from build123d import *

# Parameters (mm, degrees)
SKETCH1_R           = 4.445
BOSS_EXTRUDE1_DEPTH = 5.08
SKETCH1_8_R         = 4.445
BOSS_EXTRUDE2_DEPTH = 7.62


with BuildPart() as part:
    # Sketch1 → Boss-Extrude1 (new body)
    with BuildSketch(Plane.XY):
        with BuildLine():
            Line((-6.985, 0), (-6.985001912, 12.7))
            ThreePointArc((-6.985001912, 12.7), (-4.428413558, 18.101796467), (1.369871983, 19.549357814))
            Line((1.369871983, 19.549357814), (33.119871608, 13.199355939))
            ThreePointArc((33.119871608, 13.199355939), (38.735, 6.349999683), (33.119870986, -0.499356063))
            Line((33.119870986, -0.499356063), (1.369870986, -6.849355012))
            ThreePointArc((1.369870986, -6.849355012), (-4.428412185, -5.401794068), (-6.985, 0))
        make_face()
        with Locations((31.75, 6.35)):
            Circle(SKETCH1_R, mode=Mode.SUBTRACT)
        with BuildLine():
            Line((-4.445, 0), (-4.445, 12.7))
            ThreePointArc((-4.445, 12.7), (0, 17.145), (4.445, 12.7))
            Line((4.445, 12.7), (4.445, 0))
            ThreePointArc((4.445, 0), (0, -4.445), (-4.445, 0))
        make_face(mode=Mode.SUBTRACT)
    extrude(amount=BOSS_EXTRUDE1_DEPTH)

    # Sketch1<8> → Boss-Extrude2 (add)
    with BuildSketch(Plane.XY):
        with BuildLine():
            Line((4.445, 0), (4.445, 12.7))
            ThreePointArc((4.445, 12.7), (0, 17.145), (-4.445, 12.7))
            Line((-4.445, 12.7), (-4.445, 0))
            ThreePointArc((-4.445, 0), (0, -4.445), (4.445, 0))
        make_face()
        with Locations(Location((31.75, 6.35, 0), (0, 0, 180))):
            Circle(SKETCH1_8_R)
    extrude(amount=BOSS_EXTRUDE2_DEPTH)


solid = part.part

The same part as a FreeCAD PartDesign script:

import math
import FreeCAD as App
import Part
import Sketcher
Q = App.Units.Quantity

doc = App.newDocument("Part")
body = doc.addObject("PartDesign::Body", "Body")

# Sketch on XY plane
sketch1 = doc.addObject("Sketcher::SketchObject", "Sketch")
body.addObject(sketch1)
sketch1.AttachmentSupport = (doc.XY_Plane, [""])
sketch1.MapMode = "FlatFace"
sketch1.addGeometry([
    Part.LineSegment(App.Vector(-6.985002, 12.7, 0), App.Vector(-6.985, 0, 0)),  # 0
    Part.ArcOfCircle(Part.Circle(App.Vector(0, 0.000001, 0), App.Vector(0, 0, 1), 6.985), math.radians(-179.999991), math.radians(-78.690069)),  # 1
    Part.LineSegment(App.Vector(1.369871, -6.849355, 0), App.Vector(33.119871, -0.499356, 0)),  # 2
    Part.ArcOfCircle(Part.Circle(App.Vector(31.75, 6.35, 0), App.Vector(0, 0, 1), 6.985), math.radians(-78.690069), math.radians(78.690064)),  # 3
    Part.LineSegment(App.Vector(33.119872, 13.199356, 0), App.Vector(1.369872, 19.549358, 0)),  # 4
    Part.ArcOfCircle(Part.Circle(App.Vector(0, 12.7, 0), App.Vector(0, 0, 1), 6.985002), math.radians(78.690064), math.radians(180)),  # 5
    Part.Circle(App.Vector(31.75, 6.35, 0), App.Vector(0, 0, 1), 4.445),  # 6
    Part.LineSegment(App.Vector(-4.445, 0, 0), App.Vector(-4.445, 12.7, 0)),  # 7
    Part.ArcOfCircle(Part.Circle(App.Vector(0, 12.7, 0), App.Vector(0, 0, 1), 4.445), math.radians(0), math.radians(180)),  # 8
    Part.LineSegment(App.Vector(4.445, 12.7, 0), App.Vector(4.445, 0, 0)),  # 9
    Part.ArcOfCircle(Part.Circle(App.Vector(0, 0, 0), App.Vector(0, 0, 1), 4.445), math.radians(180), math.radians(360)),  # 10
], False)
sketch1.addConstraint([
    Sketcher.Constraint("Tangent", 0, 2, 1, 1),
    Sketcher.Constraint("Tangent", 1, 2, 2, 1),
    Sketcher.Constraint("Tangent", 2, 2, 3, 1),
    Sketcher.Constraint("Tangent", 3, 2, 4, 1),
    Sketcher.Constraint("Tangent", 4, 2, 5, 1),
    Sketcher.Constraint("Tangent", 5, 2, 0, 1),
    Sketcher.Constraint("Tangent", 7, 2, 8, 2),
    Sketcher.Constraint("Tangent", 8, 1, 9, 1),
    Sketcher.Constraint("Tangent", 9, 2, 10, 2),
    Sketcher.Constraint("Tangent", 10, 1, 7, 1),
    Sketcher.Constraint("Vertical", 0),
    Sketcher.Constraint("Vertical", 7),
    Sketcher.Constraint("Vertical", 9),
    Sketcher.Constraint("Coincident", 1, 3, -1, 1),
    Sketcher.Constraint("Coincident", 10, 3, -1, 1),
    Sketcher.Constraint("Coincident", 6, 3, 3, 3),
    Sketcher.Constraint("Coincident", 8, 3, 5, 3),
    Sketcher.Constraint("Equal", 1, 3),
    Sketcher.Constraint("Equal", 6, 8),
    Sketcher.Constraint("Vertical", 2, 2, 3, 2),
    Sketcher.Constraint("Diameter", 6, Q("0.35 in")),
    Sketcher.Constraint("DistanceY", 0, 2, 0, 1, Q("0.5 in")),
    Sketcher.Constraint("Radius", 1, Q("0.275 in")),
    Sketcher.Constraint("DistanceX", -1, 1, 3, 3, Q("1.25 in")),
])
pad1 = doc.addObject("PartDesign::Pad", "Pad")
body.addObject(pad1)
pad1.Profile = sketch1
pad1.Length = Q("0.2 in")

# Sketch on XY plane
sketch2 = doc.addObject("Sketcher::SketchObject", "Sketch001")
body.addObject(sketch2)
sketch2.AttachmentSupport = (doc.XY_Plane, [""])
sketch2.MapMode = "FlatFace"
sketch2.addGeometry([
    Part.LineSegment(App.Vector(4.445, 0, 0), App.Vector(4.445, 12.7, 0)),  # 0
    Part.ArcOfCircle(Part.Circle(App.Vector(0, 12.7, 0), App.Vector(0, 0, 1), 4.445), math.radians(0), math.radians(180)),  # 1
    Part.LineSegment(App.Vector(-4.445, 12.7, 0), App.Vector(-4.445, 0, 0)),  # 2
    Part.ArcOfCircle(Part.Circle(App.Vector(0, 0, 0), App.Vector(0, 0, 1), 4.445), math.radians(180), math.radians(360)),  # 3
    Part.Circle(App.Vector(31.75, 6.35, 0), App.Vector(0, 0, 1), 4.445),  # 4
], False)
sketch2.addConstraint([
    Sketcher.Constraint("Tangent", 0, 2, 1, 1),
    Sketcher.Constraint("Tangent", 1, 2, 2, 1),
    Sketcher.Constraint("Tangent", 2, 2, 3, 1),
    Sketcher.Constraint("Tangent", 3, 2, 0, 1),
    Sketcher.Constraint("Vertical", 0),
    Sketcher.Constraint("Vertical", 2),
    Sketcher.Constraint("Coincident", 3, 3, -1, 1),
    Sketcher.Constraint("Equal", 3, 4),
    Sketcher.Constraint("Diameter", 4, Q("0.35 in")),
    Sketcher.Constraint("DistanceY", 0, 1, 0, 2, Q("0.5 in")),
    Sketcher.Constraint("DistanceX", -1, 1, 4, 3, Q("1.25 in")),
    Sketcher.Constraint("DistanceY", -1, 1, 4, 3, Q("0.25 in")),
])
pad2 = doc.addObject("PartDesign::Pad", "Pad001")
body.addObject(pad2)
pad2.Profile = sketch2
pad2.Length = Q("0.3 in")

doc.recompute()
